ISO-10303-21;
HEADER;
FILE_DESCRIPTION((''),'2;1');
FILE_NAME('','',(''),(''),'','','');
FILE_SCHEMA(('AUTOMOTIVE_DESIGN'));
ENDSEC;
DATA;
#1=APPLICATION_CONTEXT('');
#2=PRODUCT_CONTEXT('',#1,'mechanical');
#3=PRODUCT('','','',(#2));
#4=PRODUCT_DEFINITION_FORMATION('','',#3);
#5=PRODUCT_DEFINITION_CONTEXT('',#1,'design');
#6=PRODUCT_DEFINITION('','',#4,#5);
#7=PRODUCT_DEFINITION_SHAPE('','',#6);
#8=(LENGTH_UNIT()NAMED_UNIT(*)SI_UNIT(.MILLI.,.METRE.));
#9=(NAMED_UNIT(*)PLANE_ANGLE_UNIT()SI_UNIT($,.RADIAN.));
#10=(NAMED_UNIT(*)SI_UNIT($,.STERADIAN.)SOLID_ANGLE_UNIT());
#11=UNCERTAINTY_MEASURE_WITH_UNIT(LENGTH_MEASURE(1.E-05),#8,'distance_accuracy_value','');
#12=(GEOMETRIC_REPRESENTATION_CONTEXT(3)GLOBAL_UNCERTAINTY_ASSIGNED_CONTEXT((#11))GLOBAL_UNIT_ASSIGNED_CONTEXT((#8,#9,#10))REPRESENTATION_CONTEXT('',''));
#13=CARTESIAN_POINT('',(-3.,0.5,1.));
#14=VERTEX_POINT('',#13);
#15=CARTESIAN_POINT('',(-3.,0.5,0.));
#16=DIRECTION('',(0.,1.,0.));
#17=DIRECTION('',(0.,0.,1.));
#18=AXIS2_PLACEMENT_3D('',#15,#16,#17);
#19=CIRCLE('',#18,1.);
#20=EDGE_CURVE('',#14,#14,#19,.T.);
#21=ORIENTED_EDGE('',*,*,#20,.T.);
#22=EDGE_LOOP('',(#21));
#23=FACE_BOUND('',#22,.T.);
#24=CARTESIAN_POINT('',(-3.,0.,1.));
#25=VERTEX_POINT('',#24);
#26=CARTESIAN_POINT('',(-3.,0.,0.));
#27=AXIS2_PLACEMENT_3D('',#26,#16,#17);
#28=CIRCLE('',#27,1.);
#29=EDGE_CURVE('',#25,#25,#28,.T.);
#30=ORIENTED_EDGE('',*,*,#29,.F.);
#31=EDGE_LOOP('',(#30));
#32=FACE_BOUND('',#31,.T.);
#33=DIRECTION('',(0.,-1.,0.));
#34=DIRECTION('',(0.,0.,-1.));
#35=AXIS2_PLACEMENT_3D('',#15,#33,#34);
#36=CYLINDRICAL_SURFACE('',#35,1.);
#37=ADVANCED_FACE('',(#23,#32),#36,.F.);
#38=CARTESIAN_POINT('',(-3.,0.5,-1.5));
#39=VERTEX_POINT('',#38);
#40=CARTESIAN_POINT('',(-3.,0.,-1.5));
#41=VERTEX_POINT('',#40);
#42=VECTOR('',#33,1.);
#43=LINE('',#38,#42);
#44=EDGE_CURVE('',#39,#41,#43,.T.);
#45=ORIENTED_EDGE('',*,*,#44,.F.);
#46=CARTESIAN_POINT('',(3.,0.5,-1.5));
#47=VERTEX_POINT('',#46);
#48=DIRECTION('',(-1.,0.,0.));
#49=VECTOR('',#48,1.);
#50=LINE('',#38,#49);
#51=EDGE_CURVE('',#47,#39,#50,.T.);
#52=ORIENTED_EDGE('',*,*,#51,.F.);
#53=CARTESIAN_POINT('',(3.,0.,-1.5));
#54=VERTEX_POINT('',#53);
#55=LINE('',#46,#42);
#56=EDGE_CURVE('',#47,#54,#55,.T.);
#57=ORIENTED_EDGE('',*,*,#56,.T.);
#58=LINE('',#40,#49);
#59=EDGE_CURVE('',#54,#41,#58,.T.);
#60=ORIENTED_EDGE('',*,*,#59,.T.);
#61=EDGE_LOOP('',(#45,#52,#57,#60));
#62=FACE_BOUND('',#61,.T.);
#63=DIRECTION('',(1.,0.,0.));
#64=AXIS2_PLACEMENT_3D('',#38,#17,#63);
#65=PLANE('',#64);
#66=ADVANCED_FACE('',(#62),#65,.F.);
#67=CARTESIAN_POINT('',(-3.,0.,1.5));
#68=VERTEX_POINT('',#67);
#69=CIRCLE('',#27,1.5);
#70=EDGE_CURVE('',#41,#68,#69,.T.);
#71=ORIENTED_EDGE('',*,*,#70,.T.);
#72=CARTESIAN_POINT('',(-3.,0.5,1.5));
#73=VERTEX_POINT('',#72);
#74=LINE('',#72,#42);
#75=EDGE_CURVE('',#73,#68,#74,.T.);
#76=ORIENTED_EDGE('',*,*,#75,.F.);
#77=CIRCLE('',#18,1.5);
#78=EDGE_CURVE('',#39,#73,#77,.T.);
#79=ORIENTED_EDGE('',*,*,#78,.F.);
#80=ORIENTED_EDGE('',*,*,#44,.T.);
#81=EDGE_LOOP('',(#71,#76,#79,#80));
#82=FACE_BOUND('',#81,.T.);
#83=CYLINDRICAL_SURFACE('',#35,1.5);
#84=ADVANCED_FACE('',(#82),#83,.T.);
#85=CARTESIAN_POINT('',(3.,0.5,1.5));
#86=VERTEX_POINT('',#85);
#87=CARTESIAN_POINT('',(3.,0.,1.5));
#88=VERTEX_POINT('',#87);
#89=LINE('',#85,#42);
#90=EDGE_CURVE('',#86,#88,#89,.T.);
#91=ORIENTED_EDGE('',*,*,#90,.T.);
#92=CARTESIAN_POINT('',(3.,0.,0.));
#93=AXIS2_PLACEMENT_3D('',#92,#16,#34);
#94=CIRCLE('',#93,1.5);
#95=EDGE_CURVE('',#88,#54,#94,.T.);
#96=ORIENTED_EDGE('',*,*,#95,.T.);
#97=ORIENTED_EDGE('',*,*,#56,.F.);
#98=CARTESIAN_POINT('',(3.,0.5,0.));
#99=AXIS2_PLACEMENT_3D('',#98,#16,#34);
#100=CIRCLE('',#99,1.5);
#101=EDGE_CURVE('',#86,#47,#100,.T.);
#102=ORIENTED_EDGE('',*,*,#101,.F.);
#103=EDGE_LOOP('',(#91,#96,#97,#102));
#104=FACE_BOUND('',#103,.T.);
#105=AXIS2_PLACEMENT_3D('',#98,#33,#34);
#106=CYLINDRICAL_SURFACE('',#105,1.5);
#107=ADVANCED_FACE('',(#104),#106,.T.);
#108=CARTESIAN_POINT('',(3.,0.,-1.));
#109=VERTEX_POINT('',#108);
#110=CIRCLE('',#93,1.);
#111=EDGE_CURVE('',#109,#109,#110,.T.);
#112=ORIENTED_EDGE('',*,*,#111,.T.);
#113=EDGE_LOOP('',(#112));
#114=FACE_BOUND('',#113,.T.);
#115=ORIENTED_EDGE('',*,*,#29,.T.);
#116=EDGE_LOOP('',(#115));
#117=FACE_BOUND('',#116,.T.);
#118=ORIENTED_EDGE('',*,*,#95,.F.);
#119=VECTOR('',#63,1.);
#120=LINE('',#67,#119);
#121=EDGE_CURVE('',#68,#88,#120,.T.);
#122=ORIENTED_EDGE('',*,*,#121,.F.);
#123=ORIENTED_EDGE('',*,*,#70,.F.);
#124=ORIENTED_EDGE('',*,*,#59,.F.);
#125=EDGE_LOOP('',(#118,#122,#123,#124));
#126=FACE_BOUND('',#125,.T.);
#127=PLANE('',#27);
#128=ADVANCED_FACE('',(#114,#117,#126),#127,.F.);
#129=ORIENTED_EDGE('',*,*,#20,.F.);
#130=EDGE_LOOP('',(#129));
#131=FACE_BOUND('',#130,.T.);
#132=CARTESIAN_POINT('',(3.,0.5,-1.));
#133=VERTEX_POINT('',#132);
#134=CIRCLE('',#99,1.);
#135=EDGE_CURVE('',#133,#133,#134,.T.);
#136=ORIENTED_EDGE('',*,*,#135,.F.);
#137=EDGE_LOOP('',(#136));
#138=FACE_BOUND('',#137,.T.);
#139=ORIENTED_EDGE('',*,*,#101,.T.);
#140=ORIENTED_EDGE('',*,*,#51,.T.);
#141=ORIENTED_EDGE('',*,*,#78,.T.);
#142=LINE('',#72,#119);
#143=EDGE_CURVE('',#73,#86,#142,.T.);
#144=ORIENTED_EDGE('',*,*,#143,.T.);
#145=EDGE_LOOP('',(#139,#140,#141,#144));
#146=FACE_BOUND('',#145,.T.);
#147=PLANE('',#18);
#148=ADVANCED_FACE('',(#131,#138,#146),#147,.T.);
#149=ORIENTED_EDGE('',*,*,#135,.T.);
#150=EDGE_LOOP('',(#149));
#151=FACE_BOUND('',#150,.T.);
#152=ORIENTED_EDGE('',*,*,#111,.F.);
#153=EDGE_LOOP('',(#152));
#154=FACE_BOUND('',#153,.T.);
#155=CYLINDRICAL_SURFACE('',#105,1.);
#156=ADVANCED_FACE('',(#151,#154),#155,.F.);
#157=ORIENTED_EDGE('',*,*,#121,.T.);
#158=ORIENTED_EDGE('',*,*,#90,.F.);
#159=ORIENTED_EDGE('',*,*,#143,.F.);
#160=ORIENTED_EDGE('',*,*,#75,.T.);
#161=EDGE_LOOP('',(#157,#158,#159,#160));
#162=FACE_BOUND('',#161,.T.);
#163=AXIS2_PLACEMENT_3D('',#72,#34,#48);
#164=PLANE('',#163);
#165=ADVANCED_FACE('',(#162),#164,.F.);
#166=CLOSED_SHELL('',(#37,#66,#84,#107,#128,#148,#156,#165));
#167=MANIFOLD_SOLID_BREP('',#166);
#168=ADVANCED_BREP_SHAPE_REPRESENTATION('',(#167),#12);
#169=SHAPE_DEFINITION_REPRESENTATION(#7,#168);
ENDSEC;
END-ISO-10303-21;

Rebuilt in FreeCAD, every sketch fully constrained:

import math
import FreeCAD as App
import Part
import Sketcher
Q = App.Units.Quantity

doc = App.newDocument("Part")
body = doc.addObject("PartDesign::Body", "Body")

# Sketch on XZ plane
sketch1 = body.newObject("Sketcher::SketchObject", "Sketch")
sketch1.AttachmentSupport = (doc.getObject("XZ_Plane"), [""])
sketch1.MapMode = "FlatFace"
sketch1.addGeometry([
    Part.LineSegment(App.Vector(3, -1.5, 0), App.Vector(-3, -1.5, 0)),  # 0
    Part.ArcOfCircle(Part.Circle(App.Vector(-3, 0, 0), App.Vector(0, 0, 1), 1.5), math.radians(90), math.radians(270)),  # 1
    Part.LineSegment(App.Vector(-3, 1.5, 0), App.Vector(3, 1.5, 0)),  # 2
    Part.ArcOfCircle(Part.Circle(App.Vector(3, 0, 0), App.Vector(0, 0, 1), 1.5), math.radians(-90), math.radians(90)),  # 3
    Part.Circle(App.Vector(3, 0, 0), App.Vector(0, 0, 1), 1),  # 4
    Part.Circle(App.Vector(-3, 0, 0), App.Vector(0, 0, 1), 1),  # 5
], False)
sketch1.addConstraint([
    Sketcher.Constraint("Tangent", 0, 2, 1, 2),
    Sketcher.Constraint("Tangent", 1, 1, 2, 1),
    Sketcher.Constraint("Tangent", 2, 2, 3, 2),
    Sketcher.Constraint("Tangent", 3, 1, 0, 1),
    Sketcher.Constraint("Horizontal", 0),
    Sketcher.Constraint("Horizontal", 2),
    Sketcher.Constraint("Coincident", 4, 3, 3, 3),
    Sketcher.Constraint("Coincident", 5, 3, 1, 3),
    Sketcher.Constraint("Equal", 4, 5),
    Sketcher.Constraint("Symmetric", 1, 3, 3, 3, -1, 1),
    Sketcher.Constraint("Diameter", 4, Q("2 mm")),
    Sketcher.Constraint("Radius", 1, Q("1.5 mm")),
    Sketcher.Constraint("DistanceX", 0, 2, 0, 1, Q("6 mm")),
])
pad1 = body.newObject("PartDesign::Pad", "Pad")
pad1.Profile = sketch1
pad1.Length = 0.5
pad1.Reversed = True

doc.recompute()
